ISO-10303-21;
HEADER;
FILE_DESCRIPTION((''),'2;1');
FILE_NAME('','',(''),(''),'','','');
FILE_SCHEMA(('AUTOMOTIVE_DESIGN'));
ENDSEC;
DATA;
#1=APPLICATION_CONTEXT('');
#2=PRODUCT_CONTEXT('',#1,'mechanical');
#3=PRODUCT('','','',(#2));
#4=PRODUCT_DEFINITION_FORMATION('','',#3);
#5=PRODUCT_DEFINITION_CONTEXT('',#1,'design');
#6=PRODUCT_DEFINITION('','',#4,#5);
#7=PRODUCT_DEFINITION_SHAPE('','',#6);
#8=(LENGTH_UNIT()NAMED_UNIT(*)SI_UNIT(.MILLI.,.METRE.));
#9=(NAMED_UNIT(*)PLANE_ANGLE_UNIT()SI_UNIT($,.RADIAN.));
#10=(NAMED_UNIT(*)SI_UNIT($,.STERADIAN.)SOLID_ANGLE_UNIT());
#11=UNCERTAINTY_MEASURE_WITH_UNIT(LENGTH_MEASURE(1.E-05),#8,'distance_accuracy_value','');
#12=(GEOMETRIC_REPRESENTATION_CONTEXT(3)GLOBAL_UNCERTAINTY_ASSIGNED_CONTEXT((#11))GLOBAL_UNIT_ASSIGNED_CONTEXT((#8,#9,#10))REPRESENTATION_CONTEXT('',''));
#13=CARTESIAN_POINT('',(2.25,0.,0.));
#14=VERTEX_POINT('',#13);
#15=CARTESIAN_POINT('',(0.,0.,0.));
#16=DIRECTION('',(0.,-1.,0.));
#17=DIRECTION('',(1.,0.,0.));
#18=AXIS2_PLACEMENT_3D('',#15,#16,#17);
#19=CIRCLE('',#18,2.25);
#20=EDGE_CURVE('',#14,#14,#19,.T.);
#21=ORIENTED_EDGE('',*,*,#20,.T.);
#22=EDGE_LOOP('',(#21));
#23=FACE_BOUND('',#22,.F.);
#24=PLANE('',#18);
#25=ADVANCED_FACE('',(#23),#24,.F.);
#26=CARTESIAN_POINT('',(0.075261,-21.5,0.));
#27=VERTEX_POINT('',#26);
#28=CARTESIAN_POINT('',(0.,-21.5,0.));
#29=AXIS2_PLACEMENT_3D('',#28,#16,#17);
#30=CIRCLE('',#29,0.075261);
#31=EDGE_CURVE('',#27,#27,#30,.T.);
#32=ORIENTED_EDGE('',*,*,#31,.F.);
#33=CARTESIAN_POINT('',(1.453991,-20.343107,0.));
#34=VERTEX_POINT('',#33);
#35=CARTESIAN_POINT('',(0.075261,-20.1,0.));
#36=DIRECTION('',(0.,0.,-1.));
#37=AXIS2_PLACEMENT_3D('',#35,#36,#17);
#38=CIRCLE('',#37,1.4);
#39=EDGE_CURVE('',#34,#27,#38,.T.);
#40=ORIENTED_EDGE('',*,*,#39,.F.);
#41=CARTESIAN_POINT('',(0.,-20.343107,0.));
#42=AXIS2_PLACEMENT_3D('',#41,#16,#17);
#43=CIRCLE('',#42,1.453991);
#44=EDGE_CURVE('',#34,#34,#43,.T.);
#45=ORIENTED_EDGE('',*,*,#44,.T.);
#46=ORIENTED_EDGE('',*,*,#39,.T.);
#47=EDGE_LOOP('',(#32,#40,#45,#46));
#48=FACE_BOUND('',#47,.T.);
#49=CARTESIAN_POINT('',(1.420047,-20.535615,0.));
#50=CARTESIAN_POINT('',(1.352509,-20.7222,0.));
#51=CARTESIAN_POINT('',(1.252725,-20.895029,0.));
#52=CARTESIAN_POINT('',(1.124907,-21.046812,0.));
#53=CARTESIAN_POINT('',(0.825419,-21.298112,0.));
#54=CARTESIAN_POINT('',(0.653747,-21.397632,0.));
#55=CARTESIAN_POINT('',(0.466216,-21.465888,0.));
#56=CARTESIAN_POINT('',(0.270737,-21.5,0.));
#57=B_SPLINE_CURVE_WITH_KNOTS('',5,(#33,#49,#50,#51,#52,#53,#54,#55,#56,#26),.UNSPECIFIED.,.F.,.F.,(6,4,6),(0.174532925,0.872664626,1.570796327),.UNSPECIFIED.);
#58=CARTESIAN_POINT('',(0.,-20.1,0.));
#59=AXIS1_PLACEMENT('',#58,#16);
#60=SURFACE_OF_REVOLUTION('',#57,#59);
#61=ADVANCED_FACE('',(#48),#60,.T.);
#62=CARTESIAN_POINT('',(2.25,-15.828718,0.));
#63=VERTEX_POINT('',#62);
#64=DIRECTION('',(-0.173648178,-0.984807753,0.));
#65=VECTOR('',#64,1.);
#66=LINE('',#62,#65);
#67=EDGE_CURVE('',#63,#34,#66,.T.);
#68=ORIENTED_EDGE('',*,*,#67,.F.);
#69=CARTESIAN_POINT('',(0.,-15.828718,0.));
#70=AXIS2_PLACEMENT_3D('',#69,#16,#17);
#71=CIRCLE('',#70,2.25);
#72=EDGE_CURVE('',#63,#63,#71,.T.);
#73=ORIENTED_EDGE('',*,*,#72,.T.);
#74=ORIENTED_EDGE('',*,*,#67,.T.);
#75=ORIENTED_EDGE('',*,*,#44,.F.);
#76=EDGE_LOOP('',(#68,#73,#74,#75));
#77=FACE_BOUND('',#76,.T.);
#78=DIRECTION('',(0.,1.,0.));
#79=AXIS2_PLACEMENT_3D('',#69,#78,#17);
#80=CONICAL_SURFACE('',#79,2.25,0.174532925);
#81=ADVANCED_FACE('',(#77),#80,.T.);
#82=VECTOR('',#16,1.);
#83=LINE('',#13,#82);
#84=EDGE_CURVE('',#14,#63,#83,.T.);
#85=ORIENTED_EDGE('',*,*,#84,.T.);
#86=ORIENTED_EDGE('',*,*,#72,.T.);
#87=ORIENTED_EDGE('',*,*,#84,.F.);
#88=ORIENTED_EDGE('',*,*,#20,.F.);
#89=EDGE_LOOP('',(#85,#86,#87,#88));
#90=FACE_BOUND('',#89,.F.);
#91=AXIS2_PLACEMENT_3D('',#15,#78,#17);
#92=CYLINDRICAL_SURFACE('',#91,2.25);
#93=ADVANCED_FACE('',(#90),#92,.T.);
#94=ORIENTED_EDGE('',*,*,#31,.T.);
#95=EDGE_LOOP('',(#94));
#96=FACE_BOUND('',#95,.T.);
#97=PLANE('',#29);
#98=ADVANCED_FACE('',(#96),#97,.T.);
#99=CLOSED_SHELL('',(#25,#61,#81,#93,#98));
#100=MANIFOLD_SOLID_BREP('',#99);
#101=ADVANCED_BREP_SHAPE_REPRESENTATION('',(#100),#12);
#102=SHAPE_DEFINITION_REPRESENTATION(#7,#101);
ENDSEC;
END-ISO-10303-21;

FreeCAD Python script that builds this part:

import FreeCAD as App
import Part
import Sketcher
from FreeCAD import Vector


def edges_at(feature, points):
    """Names of the edges that pass closest to the given points."""
    edges = feature.Shape.Edges
    near = lambda p: min(range(len(edges)), key=lambda i: edges[i].distToShape(Part.Vertex(*p))[0])
    return sorted({f"Edge{near(p) + 1}" for p in points})

doc = App.newDocument("Part")
body = doc.addObject("PartDesign::Body", "Body")

sketch1 = body.newObject("Sketcher::SketchObject", "Sketch")
sketch1.AttachmentSupport = (doc.getObject("XZ_Plane"), [""])
sketch1.MapMode = "FlatFace"
sketch1.addGeometry(Part.Circle(Vector(0, 0, 0), Vector(0, 0, 1), 2.2), False)
sketch1.addConstraint(Sketcher.Constraint("Coincident", 0, 3, -1, 1))
sketch1.addConstraint(Sketcher.Constraint("Diameter", 0, 4.5))
pad1 = body.newObject("PartDesign::Pad", "Pad")
pad1.Profile = sketch1
pad1.Length = 21.5
doc.recompute()

chamfer = body.newObject("PartDesign::Chamfer", "Chamfer")
chamfer.Base = (pad1, edges_at(pad1, [(-2.25, -21.5, 0)]))
chamfer.ChamferType = "Two distances"
chamfer.Size = 5.671282
chamfer.Size2 = 1
doc.recompute()

fillet = body.newObject("PartDesign::Fillet", "Fillet")
fillet.Base = (chamfer, edges_at(chamfer, [(-1.25, -21.5, 0)]))
fillet.Radius = 1.4

doc.recompute()
